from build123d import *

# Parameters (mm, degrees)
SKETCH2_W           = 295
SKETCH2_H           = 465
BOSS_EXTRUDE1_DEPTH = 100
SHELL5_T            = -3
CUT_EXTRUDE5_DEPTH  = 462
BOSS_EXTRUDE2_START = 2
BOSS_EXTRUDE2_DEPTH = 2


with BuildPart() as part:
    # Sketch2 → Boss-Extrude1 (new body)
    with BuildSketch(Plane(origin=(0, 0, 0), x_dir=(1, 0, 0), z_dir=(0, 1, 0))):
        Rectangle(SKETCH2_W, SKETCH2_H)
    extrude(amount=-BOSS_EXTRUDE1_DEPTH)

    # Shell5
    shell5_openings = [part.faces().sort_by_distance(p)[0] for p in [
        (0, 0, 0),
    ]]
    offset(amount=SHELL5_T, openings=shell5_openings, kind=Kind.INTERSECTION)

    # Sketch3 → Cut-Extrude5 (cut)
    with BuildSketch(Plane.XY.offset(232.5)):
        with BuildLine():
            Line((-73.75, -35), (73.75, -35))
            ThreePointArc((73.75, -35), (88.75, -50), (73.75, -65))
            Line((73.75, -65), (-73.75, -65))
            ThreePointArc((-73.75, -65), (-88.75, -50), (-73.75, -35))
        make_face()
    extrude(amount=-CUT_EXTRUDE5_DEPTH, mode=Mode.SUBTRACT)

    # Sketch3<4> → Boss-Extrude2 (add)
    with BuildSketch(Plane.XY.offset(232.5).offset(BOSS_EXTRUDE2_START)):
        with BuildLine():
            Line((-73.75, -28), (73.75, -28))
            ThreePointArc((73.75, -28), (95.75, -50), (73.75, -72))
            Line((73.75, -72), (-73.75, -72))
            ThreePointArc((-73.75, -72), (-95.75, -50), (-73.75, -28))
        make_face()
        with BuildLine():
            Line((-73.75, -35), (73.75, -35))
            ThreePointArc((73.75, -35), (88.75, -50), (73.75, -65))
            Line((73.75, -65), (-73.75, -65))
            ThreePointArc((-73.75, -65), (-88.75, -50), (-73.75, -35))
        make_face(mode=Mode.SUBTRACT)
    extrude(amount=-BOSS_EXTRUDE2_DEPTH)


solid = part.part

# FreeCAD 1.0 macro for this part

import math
import FreeCAD as App
import Part
import Sketcher
from FreeCAD import Vector


def faces_at(feature, points):
    """Names of the faces that lie closest to the given points."""
    faces = feature.Shape.Faces
    near = lambda p: min(range(len(faces)), key=lambda i: faces[i].distToShape(Part.Vertex(*p))[0])
    return sorted({f"Face{near(p) + 1}" for p in points})


def add_polygon(sketch, points):
    """Adds a closed chain of lines whose ends are joined by coincident constraints."""
    first, n = sketch.GeometryCount, len(points)
    for a, b in zip(points, points[1:] + points[:1]):
        sketch.addGeometry(Part.LineSegment(App.Vector(*a, 0), App.Vector(*b, 0)), False)
    for i in range(n):
        sketch.addConstraint(Sketcher.Constraint("Coincident", first + i, 2, first + (i + 1) % n, 1))

doc = App.newDocument("Part")
params = doc.addObject("Spreadsheet::Sheet", "Params")
for row, (alias, value) in enumerate([
    ("sketch1_width", "295 mm"),
    ("sketch1_height", "465 mm"),
    ("pad1_length", "100 mm"),
    ("thickness_wall", "3 mm"),
    ("sketch2_radius", "15 mm"),
    ("sketch2_width", "147.5 mm"),
    ("pocket1_length", "462 mm"),
    ("sketch3_radius", "22 mm"),
    ("sketch3_radius2", "15 mm"),
    ("sketch3_width", "147.5 mm"),
    ("pad2_length", "2 mm"),
], start=1):
    params.set(f"A{row}", alias)
    params.set(f"B{row}", "=" + value)
    params.setAlias(f"B{row}", alias)

body = doc.addObject("PartDesign::Body", "Body")

sketch1 = doc.addObject("Sketcher::SketchObject", "Sketch")
body.addObject(sketch1)
sketch1.AttachmentSupport = (doc.XZ_Plane, [""])
sketch1.MapMode = "FlatFace"
add_polygon(sketch1, [(-147.5, -232.5), (-147.5, 232.5), (147.5, 232.5), (147.5, -232.5)])
sketch1.addConstraint([
    Sketcher.Constraint("Vertical", 0),
    Sketcher.Constraint("Horizontal", 1),
    Sketcher.Constraint("Vertical", 2),
    Sketcher.Constraint("Horizontal", 3),
    Sketcher.Constraint("Symmetric", 0, 2, 2, 2, -1, 1),
    Sketcher.Constraint("DistanceX", 1, 1, 1, 2, 295.0),
    Sketcher.Constraint("DistanceY", 0, 1, 0, 2, 465.0),
])
sketch1.setExpression("Constraints[9]", "Params.sketch1_width")
sketch1.setExpression("Constraints[10]", "Params.sketch1_height")
pad1 = doc.addObject("PartDesign::Pad", "Pad")
body.addObject(pad1)
pad1.Profile = sketch1
pad1.setExpression("Length", "Params.pad1_length")
doc.recompute()

thickness = doc.addObject("PartDesign::Thickness", "Thickness")
body.addObject(thickness)
thickness.Base = (pad1, faces_at(pad1, [(0, 0, 0)]))
thickness.setExpression("Value", "Params.thickness_wall")
thickness.Reversed = True
thickness.Join = "Intersection"

sketch2 = doc.addObject("Sketcher::SketchObject", "Sketch001")
body.addObject(sketch2)
sketch2.AttachmentSupport = (doc.XY_Plane, [""])
sketch2.MapMode = "FlatFace"
sketch2.AttachmentOffset = App.Placement(Vector(0, 0, 232.5), App.Rotation())
sketch2.addGeometry([
    Part.LineSegment(Vector(73.75, -35, 0), Vector(-73.75, -35, 0)),
    Part.ArcOfCircle(Part.Circle(Vector(-73.75, -50, 0), Vector(0, 0, 1), 15), math.radians(90), math.radians(270)),
    Part.LineSegment(Vector(-73.75, -65, 0), Vector(73.75, -65, 0)),
    Part.ArcOfCircle(Part.Circle(Vector(73.75, -50, 0), Vector(0, 0, 1), 15), math.radians(-90), math.radians(90)),
], False)
sketch2.addConstraint([
    Sketcher.Constraint("Tangent", 0, 2, 1, 1),
    Sketcher.Constraint("Tangent", 1, 2, 2, 1),
    Sketcher.Constraint("Tangent", 2, 2, 3, 1),
    Sketcher.Constraint("Tangent", 3, 2, 0, 1),
    Sketcher.Constraint("Horizontal", 0),
    Sketcher.Constraint("Horizontal", 2),
    Sketcher.Constraint("Radius", 1, 15.0),
    Sketcher.Constraint("DistanceX", 0, 2, 0, 1, 147.5),
    Sketcher.Constraint("DistanceY", 1, 3, -1, 1, 50.0),
    Sketcher.Constraint("DistanceX", 1, 3, -1, 1, 73.75),
])
sketch2.setExpression("Constraints[6]", "Params.sketch2_radius")
sketch2.setExpression("Constraints[7]", "Params.sketch2_width")
pocket1 = doc.addObject("PartDesign::Pocket", "Pocket")
body.addObject(pocket1)
pocket1.Profile = sketch2
pocket1.setExpression("Length", "Params.pocket1_length")

sketch3 = doc.addObject("Sketcher::SketchObject", "Sketch002")
body.addObject(sketch3)
sketch3.AttachmentSupport = (doc.XY_Plane, [""])
sketch3.MapMode = "FlatFace"
sketch3.AttachmentOffset = App.Placement(Vector(0, 0, 234.5), App.Rotation())
sketch3.addGeometry([
    Part.LineSegment(Vector(73.75, -28, 0), Vector(-73.75, -28, 0)),
    Part.ArcOfCircle(Part.Circle(Vector(-73.75, -50, 0), Vector(0, 0, 1), 22), math.radians(90), math.radians(270)),
    Part.LineSegment(Vector(-73.75, -72, 0), Vector(73.75, -72, 0)),
    Part.ArcOfCircle(Part.Circle(Vector(73.75, -50, 0), Vector(0, 0, 1), 22), math.radians(-90), math.radians(90)),
    Part.LineSegment(Vector(-73.75, -35, 0), Vector(73.75, -35, 0)),
    Part.ArcOfCircle(Part.Circle(Vector(73.75, -50, 0), Vector(0, 0, 1), 15), math.radians(-90), math.radians(90)),
    Part.LineSegment(Vector(73.75, -65, 0), Vector(-73.75, -65, 0)),
    Part.ArcOfCircle(Part.Circle(Vector(-73.75, -50, 0), Vector(0, 0, 1), 15), math.radians(90), math.radians(270)),
], False)
sketch3.addConstraint([
    Sketcher.Constraint("Tangent", 0, 2, 1, 1),
    Sketcher.Constraint("Tangent", 1, 2, 2, 1),
    Sketcher.Constraint("Tangent", 2, 2, 3, 1),
    Sketcher.Constraint("Tangent", 3, 2, 0, 1),
    Sketcher.Constraint("Tangent", 4, 2, 5, 2),
    Sketcher.Constraint("Tangent", 5, 1, 6, 1),
    Sketcher.Constraint("Tangent", 6, 2, 7, 2),
    Sketcher.Constraint("Tangent", 7, 1, 4, 1),
    Sketcher.Constraint("Horizontal", 0),
    Sketcher.Constraint("Horizontal", 2),
    Sketcher.Constraint("Horizontal", 4),
    Sketcher.Constraint("Horizontal", 6),
    Sketcher.Constraint("Coincident", 5, 3, 3, 3),
    Sketcher.Constraint("Vertical", 7, 3, 0, 2),
    Sketcher.Constraint("Radius", 1, 22.0),
    Sketcher.Constraint("Radius", 5, 15.0),
    Sketcher.Constraint("DistanceX", 0, 2, 0, 1, 147.5),
    Sketcher.Constraint("DistanceY", 1, 3, -1, 1, 50.0),
    Sketcher.Constraint("DistanceX", 1, 3, -1, 1, 73.75),
])
sketch3.setExpression("Constraints[14]", "Params.sketch3_radius")
sketch3.setExpression("Constraints[15]", "Params.sketch3_radius2")
sketch3.setExpression("Constraints[16]", "Params.sketch3_width")
pad2 = doc.addObject("PartDesign::Pad", "Pad001")
body.addObject(pad2)
pad2.Profile = sketch3
pad2.setExpression("Length", "Params.pad2_length")
pad2.Reversed = True

doc.recompute()
